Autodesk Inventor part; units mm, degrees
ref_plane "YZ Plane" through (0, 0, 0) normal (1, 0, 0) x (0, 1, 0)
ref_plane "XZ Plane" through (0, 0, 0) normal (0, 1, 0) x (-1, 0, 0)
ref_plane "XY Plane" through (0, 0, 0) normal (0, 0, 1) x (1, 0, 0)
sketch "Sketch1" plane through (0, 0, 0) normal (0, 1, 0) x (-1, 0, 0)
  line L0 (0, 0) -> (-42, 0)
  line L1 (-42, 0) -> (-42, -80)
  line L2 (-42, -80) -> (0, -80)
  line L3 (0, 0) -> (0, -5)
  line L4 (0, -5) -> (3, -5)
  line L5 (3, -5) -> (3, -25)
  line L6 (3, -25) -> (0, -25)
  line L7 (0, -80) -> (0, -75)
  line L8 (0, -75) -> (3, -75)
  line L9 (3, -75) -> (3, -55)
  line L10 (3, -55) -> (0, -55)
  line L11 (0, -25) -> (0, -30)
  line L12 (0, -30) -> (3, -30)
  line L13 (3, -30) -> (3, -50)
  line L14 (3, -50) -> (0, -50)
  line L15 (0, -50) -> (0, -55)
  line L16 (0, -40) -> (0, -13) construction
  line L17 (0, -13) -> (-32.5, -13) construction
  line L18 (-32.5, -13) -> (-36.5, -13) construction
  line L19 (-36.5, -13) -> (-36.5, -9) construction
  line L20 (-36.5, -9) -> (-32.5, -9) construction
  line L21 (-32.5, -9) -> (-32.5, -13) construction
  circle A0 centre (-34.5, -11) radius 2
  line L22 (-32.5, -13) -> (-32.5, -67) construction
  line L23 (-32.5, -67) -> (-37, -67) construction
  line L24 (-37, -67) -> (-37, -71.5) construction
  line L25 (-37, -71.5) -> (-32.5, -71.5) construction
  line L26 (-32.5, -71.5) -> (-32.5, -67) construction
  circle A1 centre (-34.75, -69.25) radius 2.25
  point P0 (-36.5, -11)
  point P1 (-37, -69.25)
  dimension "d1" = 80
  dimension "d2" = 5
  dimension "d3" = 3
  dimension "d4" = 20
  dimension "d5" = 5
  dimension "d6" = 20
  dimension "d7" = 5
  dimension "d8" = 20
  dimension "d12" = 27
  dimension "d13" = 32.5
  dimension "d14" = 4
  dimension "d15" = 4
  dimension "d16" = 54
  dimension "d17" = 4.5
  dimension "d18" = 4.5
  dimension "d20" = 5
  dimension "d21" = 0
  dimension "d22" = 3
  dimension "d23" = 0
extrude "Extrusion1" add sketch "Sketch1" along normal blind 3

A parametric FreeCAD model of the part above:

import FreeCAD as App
import Part
import Sketcher
Q = App.Units.Quantity


def add_polygon(sketch, points):
    """Adds a closed chain of lines whose ends are joined by coincident constraints."""
    first, n = sketch.GeometryCount, len(points)
    for a, b in zip(points, points[1:] + points[:1]):
        sketch.addGeometry(Part.LineSegment(App.Vector(*a, 0), App.Vector(*b, 0)), False)
    for i in range(n):
        sketch.addConstraint(Sketcher.Constraint("Coincident", first + i, 2, first + (i + 1) % n, 1))

doc = App.newDocument("Part")
body = doc.addObject("PartDesign::Body", "Body")

sketch1 = body.newObject("Sketcher::SketchObject", "Sketch")
sketch1.AttachmentSupport = (doc.getObject("XZ_Plane"), [""])
sketch1.MapMode = "FlatFace"
add_polygon(sketch1, [(0, -5), (0, 0), (42, 0), (42, -80), (0, -80), (0, -75), (-3, -75), (-3, -55), (0, -55), (0, -50), (-3, -50), (-3, -30), (0, -30), (0, -25), (-3, -25), (-3, -5)])
sketch1.addGeometry(Part.Circle(App.Vector(34.8, -69.2, 0), App.Vector(0, 0, 1), 2.2), False)
sketch1.addGeometry(Part.Circle(App.Vector(34.5, -11, 0), App.Vector(0, 0, 1), 2), False)
sketch1.addConstraint([
    Sketcher.Constraint("Vertical", 0),
    Sketcher.Constraint("Horizontal", 1),
    Sketcher.Constraint("Vertical", 2),
    Sketcher.Constraint("Horizontal", 3),
    Sketcher.Constraint("Vertical", 4),
    Sketcher.Constraint("Horizontal", 5),
    Sketcher.Constraint("Vertical", 6),
    Sketcher.Constraint("Horizontal", 7),
    Sketcher.Constraint("Vertical", 8),
    Sketcher.Constraint("Horizontal", 9),
    Sketcher.Constraint("Vertical", 10),
    Sketcher.Constraint("Horizontal", 11),
    Sketcher.Constraint("Vertical", 12),
    Sketcher.Constraint("Horizontal", 13),
    Sketcher.Constraint("Vertical", 14),
    Sketcher.Constraint("Horizontal", 15),
    Sketcher.Constraint("Coincident", 0, 2, -1, 1),
    Sketcher.Constraint("PointOnObject", 3, 2, -2),
    Sketcher.Constraint("PointOnObject", 7, 2, -2),
    Sketcher.Constraint("PointOnObject", 11, 2, -2),
    Sketcher.Constraint("Vertical", 6, 2, 9, 2),
    Sketcher.Constraint("Vertical", 10, 2, 13, 2),
    Sketcher.Constraint("Equal", 0, 4),
    Sketcher.Constraint("Equal", 4, 8),
    Sketcher.Constraint("Equal", 6, 10),
    Sketcher.Constraint("Equal", 8, 12),
    Sketcher.Constraint("Equal", 10, 14),
    Sketcher.Constraint("Diameter", 17, Q("4 mm")),
    Sketcher.Constraint("Diameter", 16, Q("4.5 mm")),
    Sketcher.Constraint("DistanceX", 5, 2, 5, 1, Q("3 mm")),
    Sketcher.Constraint("DistanceY", 0, 1, 0, 2, Q("5 mm")),
    Sketcher.Constraint("DistanceY", 2, 2, 2, 1, Q("80 mm")),
    Sketcher.Constraint("DistanceX", 1, 1, 1, 2, Q("42 mm")),
    Sketcher.Constraint("DistanceY", 17, 3, -1, 1, Q("11 mm")),
    Sketcher.Constraint("DistanceX", -1, 1, 17, 3, Q("34.5 mm")),
    Sketcher.Constraint("DistanceX", -1, 1, 16, 3, Q("34.75 mm")),
    Sketcher.Constraint("DistanceY", 16, 3, -1, 1, Q("69.25 mm")),
])
pad1 = body.newObject("PartDesign::Pad", "Pad")
pad1.Profile = sketch1
pad1.Length = 3
pad1.Reversed = True

doc.recompute()
